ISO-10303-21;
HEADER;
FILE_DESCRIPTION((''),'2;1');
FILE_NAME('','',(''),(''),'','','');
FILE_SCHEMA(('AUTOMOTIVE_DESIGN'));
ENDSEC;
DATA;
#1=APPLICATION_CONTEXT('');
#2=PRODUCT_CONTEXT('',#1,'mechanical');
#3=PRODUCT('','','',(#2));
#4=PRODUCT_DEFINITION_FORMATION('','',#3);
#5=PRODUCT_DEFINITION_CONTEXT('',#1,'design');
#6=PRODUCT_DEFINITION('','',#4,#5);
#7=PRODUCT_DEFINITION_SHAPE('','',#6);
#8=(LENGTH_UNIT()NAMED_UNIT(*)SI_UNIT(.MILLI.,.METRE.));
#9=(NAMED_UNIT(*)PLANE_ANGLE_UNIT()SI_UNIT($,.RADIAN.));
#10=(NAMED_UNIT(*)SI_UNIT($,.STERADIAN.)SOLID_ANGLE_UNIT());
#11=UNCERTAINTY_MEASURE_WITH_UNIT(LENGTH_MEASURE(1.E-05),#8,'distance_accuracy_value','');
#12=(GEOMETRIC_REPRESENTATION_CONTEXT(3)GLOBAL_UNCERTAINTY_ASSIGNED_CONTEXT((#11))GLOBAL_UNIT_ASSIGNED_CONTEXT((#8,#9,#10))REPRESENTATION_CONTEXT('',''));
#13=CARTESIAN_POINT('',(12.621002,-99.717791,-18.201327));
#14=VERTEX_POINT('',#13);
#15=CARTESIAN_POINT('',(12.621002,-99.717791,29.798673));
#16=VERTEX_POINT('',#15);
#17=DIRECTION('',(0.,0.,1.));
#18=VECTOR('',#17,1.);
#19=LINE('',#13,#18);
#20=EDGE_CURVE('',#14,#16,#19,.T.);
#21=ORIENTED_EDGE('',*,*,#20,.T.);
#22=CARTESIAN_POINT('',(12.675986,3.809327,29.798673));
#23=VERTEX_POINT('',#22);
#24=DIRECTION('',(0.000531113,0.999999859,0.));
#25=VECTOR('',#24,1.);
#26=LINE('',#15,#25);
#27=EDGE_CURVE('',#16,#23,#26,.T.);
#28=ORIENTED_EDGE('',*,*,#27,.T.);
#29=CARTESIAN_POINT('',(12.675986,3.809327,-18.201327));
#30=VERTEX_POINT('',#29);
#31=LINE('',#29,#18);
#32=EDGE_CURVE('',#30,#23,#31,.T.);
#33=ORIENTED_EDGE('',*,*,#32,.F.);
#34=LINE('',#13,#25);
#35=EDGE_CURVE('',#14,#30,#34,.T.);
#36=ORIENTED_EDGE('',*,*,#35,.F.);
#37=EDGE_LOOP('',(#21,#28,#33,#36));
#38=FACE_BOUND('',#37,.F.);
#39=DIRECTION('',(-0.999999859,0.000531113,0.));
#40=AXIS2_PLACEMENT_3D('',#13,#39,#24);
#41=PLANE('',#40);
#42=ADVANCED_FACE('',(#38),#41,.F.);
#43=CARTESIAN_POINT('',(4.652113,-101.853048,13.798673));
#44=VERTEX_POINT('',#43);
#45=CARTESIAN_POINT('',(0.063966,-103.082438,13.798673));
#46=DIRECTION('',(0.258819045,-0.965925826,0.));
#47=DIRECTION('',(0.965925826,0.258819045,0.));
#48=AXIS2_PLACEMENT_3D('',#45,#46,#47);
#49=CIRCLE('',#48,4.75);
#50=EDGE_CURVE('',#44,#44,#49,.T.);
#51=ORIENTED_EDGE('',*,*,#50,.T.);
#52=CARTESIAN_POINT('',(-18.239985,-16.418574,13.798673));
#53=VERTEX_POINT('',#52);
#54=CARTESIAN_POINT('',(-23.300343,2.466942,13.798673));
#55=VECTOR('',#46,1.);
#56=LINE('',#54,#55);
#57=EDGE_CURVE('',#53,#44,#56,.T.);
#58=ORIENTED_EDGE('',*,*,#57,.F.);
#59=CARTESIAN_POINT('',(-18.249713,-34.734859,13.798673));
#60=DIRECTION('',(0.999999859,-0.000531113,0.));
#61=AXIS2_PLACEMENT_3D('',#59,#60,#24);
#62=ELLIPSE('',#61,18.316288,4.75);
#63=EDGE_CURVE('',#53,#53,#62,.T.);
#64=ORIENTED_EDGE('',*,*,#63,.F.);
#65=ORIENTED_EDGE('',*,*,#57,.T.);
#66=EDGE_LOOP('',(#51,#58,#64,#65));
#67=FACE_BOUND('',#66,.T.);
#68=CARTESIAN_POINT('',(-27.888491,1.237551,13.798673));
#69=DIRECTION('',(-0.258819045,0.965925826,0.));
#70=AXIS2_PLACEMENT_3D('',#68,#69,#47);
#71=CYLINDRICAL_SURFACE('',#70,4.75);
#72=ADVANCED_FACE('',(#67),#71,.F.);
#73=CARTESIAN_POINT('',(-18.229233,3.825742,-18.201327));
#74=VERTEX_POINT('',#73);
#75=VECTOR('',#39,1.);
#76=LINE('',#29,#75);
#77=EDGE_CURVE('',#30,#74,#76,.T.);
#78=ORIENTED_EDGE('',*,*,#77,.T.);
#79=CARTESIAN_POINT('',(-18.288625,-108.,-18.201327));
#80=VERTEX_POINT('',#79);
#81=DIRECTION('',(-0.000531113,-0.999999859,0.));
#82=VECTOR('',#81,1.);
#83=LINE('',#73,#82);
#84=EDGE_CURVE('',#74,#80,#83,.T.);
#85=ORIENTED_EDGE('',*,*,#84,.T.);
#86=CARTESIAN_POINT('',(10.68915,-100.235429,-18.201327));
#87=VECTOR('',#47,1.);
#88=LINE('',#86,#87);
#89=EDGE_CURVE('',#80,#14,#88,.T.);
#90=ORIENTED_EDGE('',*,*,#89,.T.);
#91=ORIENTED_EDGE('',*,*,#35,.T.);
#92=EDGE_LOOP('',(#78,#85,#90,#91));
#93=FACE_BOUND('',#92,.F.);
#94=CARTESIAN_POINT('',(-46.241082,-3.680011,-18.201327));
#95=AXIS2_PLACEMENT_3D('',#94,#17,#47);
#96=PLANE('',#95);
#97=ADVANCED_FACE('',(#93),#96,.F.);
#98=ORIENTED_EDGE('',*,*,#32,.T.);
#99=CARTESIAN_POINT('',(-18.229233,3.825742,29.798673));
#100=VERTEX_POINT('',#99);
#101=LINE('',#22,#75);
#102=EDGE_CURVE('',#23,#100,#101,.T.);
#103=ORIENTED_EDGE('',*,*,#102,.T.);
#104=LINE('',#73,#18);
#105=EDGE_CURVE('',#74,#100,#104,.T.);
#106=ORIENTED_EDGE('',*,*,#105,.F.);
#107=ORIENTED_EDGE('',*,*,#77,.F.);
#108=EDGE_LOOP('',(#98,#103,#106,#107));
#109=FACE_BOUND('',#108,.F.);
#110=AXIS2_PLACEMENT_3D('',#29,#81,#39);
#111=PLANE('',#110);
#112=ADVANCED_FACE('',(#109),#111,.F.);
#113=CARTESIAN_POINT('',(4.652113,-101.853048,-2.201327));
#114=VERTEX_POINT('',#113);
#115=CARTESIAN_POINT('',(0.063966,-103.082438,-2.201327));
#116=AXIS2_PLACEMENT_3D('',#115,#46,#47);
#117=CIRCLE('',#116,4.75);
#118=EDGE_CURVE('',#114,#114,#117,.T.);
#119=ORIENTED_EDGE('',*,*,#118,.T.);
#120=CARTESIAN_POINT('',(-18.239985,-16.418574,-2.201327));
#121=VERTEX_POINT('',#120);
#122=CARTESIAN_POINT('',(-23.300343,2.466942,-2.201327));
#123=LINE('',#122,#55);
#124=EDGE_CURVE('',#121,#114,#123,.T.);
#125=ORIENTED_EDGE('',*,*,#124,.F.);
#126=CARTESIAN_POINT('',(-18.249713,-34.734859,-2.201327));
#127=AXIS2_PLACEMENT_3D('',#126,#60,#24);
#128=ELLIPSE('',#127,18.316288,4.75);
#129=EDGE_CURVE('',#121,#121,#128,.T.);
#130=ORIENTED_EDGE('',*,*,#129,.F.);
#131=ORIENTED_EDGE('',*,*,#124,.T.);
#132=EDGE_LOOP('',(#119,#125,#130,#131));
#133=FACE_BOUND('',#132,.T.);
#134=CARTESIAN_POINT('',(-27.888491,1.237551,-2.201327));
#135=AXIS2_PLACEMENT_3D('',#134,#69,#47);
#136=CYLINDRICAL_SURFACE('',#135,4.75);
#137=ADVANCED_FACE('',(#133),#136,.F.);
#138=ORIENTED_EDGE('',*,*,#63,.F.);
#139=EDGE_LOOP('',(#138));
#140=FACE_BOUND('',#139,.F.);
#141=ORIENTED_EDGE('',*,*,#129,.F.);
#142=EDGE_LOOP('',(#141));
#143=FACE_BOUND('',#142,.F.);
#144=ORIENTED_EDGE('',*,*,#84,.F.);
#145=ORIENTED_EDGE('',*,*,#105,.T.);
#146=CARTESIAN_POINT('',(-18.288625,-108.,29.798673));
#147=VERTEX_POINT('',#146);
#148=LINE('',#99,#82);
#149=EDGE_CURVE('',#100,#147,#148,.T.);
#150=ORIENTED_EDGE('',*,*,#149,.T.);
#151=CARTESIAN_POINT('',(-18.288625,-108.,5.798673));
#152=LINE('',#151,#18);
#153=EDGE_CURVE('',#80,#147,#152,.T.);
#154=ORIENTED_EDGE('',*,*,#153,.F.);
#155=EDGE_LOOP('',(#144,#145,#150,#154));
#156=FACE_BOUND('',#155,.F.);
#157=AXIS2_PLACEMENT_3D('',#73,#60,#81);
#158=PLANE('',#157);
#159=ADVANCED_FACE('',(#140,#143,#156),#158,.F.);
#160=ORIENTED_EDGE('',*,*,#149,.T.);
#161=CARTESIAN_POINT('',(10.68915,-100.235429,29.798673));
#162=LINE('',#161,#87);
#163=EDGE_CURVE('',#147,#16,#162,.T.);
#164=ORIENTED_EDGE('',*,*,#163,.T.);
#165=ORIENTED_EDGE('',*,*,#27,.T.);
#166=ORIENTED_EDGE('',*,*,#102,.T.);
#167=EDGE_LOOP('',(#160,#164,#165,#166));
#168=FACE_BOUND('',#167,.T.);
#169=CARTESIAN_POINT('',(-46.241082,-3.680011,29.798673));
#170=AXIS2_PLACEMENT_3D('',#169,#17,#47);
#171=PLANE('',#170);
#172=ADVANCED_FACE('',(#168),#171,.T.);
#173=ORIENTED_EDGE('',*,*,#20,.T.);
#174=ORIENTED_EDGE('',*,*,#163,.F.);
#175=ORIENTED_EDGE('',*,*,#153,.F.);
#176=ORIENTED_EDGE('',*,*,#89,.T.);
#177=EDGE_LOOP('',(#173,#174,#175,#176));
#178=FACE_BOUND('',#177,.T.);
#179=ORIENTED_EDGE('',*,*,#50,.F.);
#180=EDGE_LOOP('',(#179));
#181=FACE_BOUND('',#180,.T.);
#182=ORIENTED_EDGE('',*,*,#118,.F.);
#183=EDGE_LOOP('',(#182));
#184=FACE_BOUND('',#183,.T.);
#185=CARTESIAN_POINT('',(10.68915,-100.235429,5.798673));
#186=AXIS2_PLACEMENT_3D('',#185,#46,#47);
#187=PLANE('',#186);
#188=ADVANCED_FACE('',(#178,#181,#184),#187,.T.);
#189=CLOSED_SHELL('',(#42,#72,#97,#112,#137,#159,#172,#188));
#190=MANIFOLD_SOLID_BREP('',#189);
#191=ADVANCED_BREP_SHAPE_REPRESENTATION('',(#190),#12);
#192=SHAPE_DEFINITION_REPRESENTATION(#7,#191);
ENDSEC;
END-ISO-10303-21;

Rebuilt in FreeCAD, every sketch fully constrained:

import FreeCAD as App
import Part
import Sketcher

V = App.Vector
Q = App.Units.Quantity

doc = App.newDocument("Part")
body = doc.addObject("PartDesign::Body", "Body")

# Sketch on XZ plane
sketch1 = doc.addObject("Sketcher::SketchObject", "Sketch")
body.addObject(sketch1)
sketch1.AttachmentSupport = (doc.XZ_Plane, [""])
sketch1.MapMode = "FlatFace"
sketch1.addGeometry(Part.LineSegment(V(-18.3, 29.8, 0), V(-18.3, -18.2, 0)), False)
sketch1.addGeometry(Part.LineSegment(V(-18.3, -18.2, 0), V(41.7, -18.2, 0)), False)
sketch1.addGeometry(Part.LineSegment(V(41.7, -18.2, 0), V(41.7, 29.8, 0)), False)
sketch1.addGeometry(Part.LineSegment(V(41.7, 29.8, 0), V(-18.3, 29.8, 0)), False)
sketch1.addGeometry(Part.Circle(V(0.7, -2.2, 0), V(0, 0, 1), 4.8), False)
sketch1.addGeometry(Part.Circle(V(0.7, 13.8, 0), V(0, 0, 1), 4.8), False)
sketch1.addConstraint(Sketcher.Constraint("Coincident", 0, 2, 1, 1))
sketch1.addConstraint(Sketcher.Constraint("Coincident", 1, 2, 2, 1))
sketch1.addConstraint(Sketcher.Constraint("Coincident", 2, 2, 3, 1))
sketch1.addConstraint(Sketcher.Constraint("Coincident", 3, 2, 0, 1))
sketch1.addConstraint(Sketcher.Constraint("Vertical", 0))
sketch1.addConstraint(Sketcher.Constraint("Horizontal", 1))
sketch1.addConstraint(Sketcher.Constraint("Vertical", 2))
sketch1.addConstraint(Sketcher.Constraint("Horizontal", 3))
sketch1.addConstraint(Sketcher.Constraint("Equal", 4, 5))
sketch1.addConstraint(Sketcher.Constraint("Vertical", 4, 3, 5, 3))
sketch1.addConstraint(Sketcher.Constraint("Diameter", 4, Q("9.5 mm")))
sketch1.addConstraint(Sketcher.Constraint("DistanceX", 1, 1, 1, 2, Q("60 mm")))
sketch1.addConstraint(Sketcher.Constraint("DistanceY", 0, 2, 0, 1, Q("48 mm")))
sketch1.addConstraint(Sketcher.Constraint("DistanceY", 4, 3, 5, 3, Q("16 mm")))
sketch1.addConstraint(Sketcher.Constraint("DistanceX", 0, 2, 4, 3, Q("19 mm")))
sketch1.addConstraint(Sketcher.Constraint("DistanceY", 0, 2, 4, 3, Q("16 mm")))
sketch1.addConstraint(Sketcher.Constraint("DistanceX", -1, 1, 4, 3, Q("0.711375 mm")))
sketch1.addConstraint(Sketcher.Constraint("DistanceY", 4, 3, -1, 1, Q("2.201327 mm")))
pad1 = doc.addObject("PartDesign::Pad", "Pad")
body.addObject(pad1)
pad1.Profile = sketch1
pad1.Length = 108

# Sketch on XY plane
sketch2 = doc.addObject("Sketcher::SketchObject", "Sketch001")
body.addObject(sketch2)
sketch2.AttachmentSupport = (doc.XY_Plane, [""])
sketch2.MapMode = "FlatFace"
sketch2.AttachmentOffset = App.Placement(V(0, 0, -18.201327), App.Rotation())
sketch2.addGeometry(Part.LineSegment(V(11, 0, 0), V(-18, -108, 0)), False)
sketch2.addGeometry(Part.LineSegment(V(-18, -108, 0), V(-18, 0, 0)), False)
sketch2.addGeometry(Part.LineSegment(V(-18, 0, 0), V(11, 0, 0)), False)
sketch2.addConstraint(Sketcher.Constraint("Coincident", 0, 2, 1, 1))
sketch2.addConstraint(Sketcher.Constraint("Coincident", 1, 2, 2, 1))
sketch2.addConstraint(Sketcher.Constraint("Coincident", 2, 2, 0, 1))
sketch2.addConstraint(Sketcher.Constraint("Vertical", 1))
sketch2.addConstraint(Sketcher.Constraint("Horizontal", 2))
sketch2.addConstraint(Sketcher.Constraint("PointOnObject", 1, 2, -1))
sketch2.addConstraint(Sketcher.Constraint("DistanceX", 2, 1, 2, 2, Q("29 mm")))
sketch2.addConstraint(Sketcher.Constraint("DistanceY", 1, 1, 1, 2, Q("108 mm")))
sketch2.addConstraint(Sketcher.Constraint("DistanceX", 0, 2, -1, 1, Q("18.288625 mm")))
pocket1 = doc.addObject("PartDesign::Pocket", "Pocket")
body.addObject(pocket1)
pocket1.Profile = sketch2
pocket1.Length = 48
pocket1.Reversed = True

# Sketch on XY plane
sketch3 = doc.addObject("Sketcher::SketchObject", "Sketch002")
body.addObject(sketch3)
sketch3.AttachmentSupport = (doc.XY_Plane, [""])
sketch3.MapMode = "FlatFace"
sketch3.AttachmentOffset = App.Placement(V(0, 0, -18.201327), App.Rotation())
sketch3.addGeometry(Part.LineSegment(V(41.7, -3.7, 0), V(42.3, -1.5, 0)), False)
sketch3.addGeometry(Part.LineSegment(V(42.3, -1.5, 0), V(42.3, -108, 0)), False)
sketch3.addGeometry(Part.LineSegment(V(42.3, -108, 0), V(13.7, -108, 0)), False)
sketch3.addGeometry(Part.LineSegment(V(13.7, -108, 0), V(41.7, -3.7, 0)), False)
sketch3.addConstraint(Sketcher.Constraint("Coincident", 0, 2, 1, 1))
sketch3.addConstraint(Sketcher.Constraint("Coincident", 1, 2, 2, 1))
sketch3.addConstraint(Sketcher.Constraint("Coincident", 2, 2, 3, 1))
sketch3.addConstraint(Sketcher.Constraint("Coincident", 3, 2, 0, 1))
sketch3.addConstraint(Sketcher.Constraint("Vertical", 1))
sketch3.addConstraint(Sketcher.Constraint("Horizontal", 2))
sketch3.addConstraint(Sketcher.Constraint("Parallel", 0, 3))
sketch3.addConstraint(Sketcher.Constraint("DistanceY", 1, 2, -1, 1, Q("108 mm")))
sketch3.addConstraint(Sketcher.Constraint("DistanceX", 2, 2, 3, 2, Q("28 mm")))
sketch3.addConstraint(Sketcher.Constraint("Distance", 0, Q("2.303851 mm")))
sketch3.addConstraint(Sketcher.Constraint("DistanceY", 1, 2, 1, 1, Q("106.500894 mm")))
sketch3.addConstraint(Sketcher.Constraint("DistanceX", -1, 1, 0, 2, Q("42.308837 mm")))
pocket2 = doc.addObject("PartDesign::Pocket", "Pocket001")
body.addObject(pocket2)
pocket2.Profile = sketch3
pocket2.Length = 48
pocket2.Reversed = True

# Sketch on XY plane
sketch4 = doc.addObject("Sketcher::SketchObject", "Sketch003")
body.addObject(sketch4)
sketch4.AttachmentSupport = (doc.XY_Plane, [""])
sketch4.MapMode = "FlatFace"
sketch4.AttachmentOffset = App.Placement(V(0, 0, -18.201327), App.Rotation())
sketch4.addGeometry(Part.LineSegment(V(41.7, -3.7, 0), V(10.7, 0, 0)), False)
sketch4.addGeometry(Part.LineSegment(V(10.7, 0, 0), V(41.7, 0, 0)), False)
sketch4.addGeometry(Part.LineSegment(V(41.7, 0, 0), V(41.7, -3.7, 0)), False)
sketch4.addConstraint(Sketcher.Constraint("Coincident", 0, 2, 1, 1))
sketch4.addConstraint(Sketcher.Constraint("Coincident", 1, 2, 2, 1))
sketch4.addConstraint(Sketcher.Constraint("Coincident", 2, 2, 0, 1))
sketch4.addConstraint(Sketcher.Constraint("Horizontal", 1))
sketch4.addConstraint(Sketcher.Constraint("Vertical", 2))
sketch4.addConstraint(Sketcher.Constraint("PointOnObject", 0, 2, -1))
sketch4.addConstraint(Sketcher.Constraint("DistanceX", 1, 1, 1, 2, Q("31 mm")))
sketch4.addConstraint(Sketcher.Constraint("DistanceY", 2, 2, 2, 1, Q("3.724138 mm")))
sketch4.addConstraint(Sketcher.Constraint("DistanceX", -1, 1, 0, 2, Q("10.711375 mm")))
pocket3 = doc.addObject("PartDesign::Pocket", "Pocket002")
body.addObject(pocket3)
pocket3.Profile = sketch4
pocket3.Length = 48
pocket3.Reversed = True

# Sketch on XY plane
sketch5 = doc.addObject("Sketcher::SketchObject", "Sketch004")
body.addObject(sketch5)
sketch5.AttachmentSupport = (doc.XY_Plane, [""])
sketch5.MapMode = "FlatFace"
sketch5.AttachmentOffset = App.Placement(V(0, 0, -18.201327), App.Rotation())
sketch5.addGeometry(Part.LineSegment(V(41, -8, 0), V(11, 0, 0)), False)
sketch5.addGeometry(Part.LineSegment(V(11, 0, 0), V(42, -1, 0)), False)
sketch5.addGeometry(Part.LineSegment(V(42, -1, 0), V(41, -8, 0)), False)
sketch5.addConstraint(Sketcher.Constraint("Coincident", 0, 2, 1, 1))
sketch5.addConstraint(Sketcher.Constraint("Coincident", 1, 2, 2, 1))
sketch5.addConstraint(Sketcher.Constraint("Coincident", 2, 2, 0, 1))
sketch5.addConstraint(Sketcher.Constraint("PointOnObject", 0, 2, -1))
sketch5.addConstraint(Sketcher.Constraint("Perpendicular", 0, 2))
sketch5.addConstraint(Sketcher.Constraint("DistanceX", 0, 2, 2, 2, Q("29.847901 mm")))
sketch5.addConstraint(Sketcher.Constraint("Distance", 2, Q("7.017758 mm")))
sketch5.addConstraint(Sketcher.Constraint("DistanceX", 0, 2, 1, 2, Q("31.66783 mm")))
sketch5.addConstraint(Sketcher.Constraint("DistanceX", -1, 1, 0, 2, Q("10.711375 mm")))
pocket4 = doc.addObject("PartDesign::Pocket", "Pocket003")
body.addObject(pocket4)
pocket4.Profile = sketch5
pocket4.Length = 48
pocket4.Reversed = True
body2 = doc.addObject("PartDesign::Body", "Body001")
doc.recompute()

body.Placement = App.Placement(V(-28.575627, 1.053434, 0), App.Rotation(V(0, 0, -1), 345))
boolean = doc.addObject("PartDesign::Boolean", "Boolean")
body2.addObject(boolean)
boolean.Type = "Fuse"
boolean.addObjects([body])

doc.recompute()
